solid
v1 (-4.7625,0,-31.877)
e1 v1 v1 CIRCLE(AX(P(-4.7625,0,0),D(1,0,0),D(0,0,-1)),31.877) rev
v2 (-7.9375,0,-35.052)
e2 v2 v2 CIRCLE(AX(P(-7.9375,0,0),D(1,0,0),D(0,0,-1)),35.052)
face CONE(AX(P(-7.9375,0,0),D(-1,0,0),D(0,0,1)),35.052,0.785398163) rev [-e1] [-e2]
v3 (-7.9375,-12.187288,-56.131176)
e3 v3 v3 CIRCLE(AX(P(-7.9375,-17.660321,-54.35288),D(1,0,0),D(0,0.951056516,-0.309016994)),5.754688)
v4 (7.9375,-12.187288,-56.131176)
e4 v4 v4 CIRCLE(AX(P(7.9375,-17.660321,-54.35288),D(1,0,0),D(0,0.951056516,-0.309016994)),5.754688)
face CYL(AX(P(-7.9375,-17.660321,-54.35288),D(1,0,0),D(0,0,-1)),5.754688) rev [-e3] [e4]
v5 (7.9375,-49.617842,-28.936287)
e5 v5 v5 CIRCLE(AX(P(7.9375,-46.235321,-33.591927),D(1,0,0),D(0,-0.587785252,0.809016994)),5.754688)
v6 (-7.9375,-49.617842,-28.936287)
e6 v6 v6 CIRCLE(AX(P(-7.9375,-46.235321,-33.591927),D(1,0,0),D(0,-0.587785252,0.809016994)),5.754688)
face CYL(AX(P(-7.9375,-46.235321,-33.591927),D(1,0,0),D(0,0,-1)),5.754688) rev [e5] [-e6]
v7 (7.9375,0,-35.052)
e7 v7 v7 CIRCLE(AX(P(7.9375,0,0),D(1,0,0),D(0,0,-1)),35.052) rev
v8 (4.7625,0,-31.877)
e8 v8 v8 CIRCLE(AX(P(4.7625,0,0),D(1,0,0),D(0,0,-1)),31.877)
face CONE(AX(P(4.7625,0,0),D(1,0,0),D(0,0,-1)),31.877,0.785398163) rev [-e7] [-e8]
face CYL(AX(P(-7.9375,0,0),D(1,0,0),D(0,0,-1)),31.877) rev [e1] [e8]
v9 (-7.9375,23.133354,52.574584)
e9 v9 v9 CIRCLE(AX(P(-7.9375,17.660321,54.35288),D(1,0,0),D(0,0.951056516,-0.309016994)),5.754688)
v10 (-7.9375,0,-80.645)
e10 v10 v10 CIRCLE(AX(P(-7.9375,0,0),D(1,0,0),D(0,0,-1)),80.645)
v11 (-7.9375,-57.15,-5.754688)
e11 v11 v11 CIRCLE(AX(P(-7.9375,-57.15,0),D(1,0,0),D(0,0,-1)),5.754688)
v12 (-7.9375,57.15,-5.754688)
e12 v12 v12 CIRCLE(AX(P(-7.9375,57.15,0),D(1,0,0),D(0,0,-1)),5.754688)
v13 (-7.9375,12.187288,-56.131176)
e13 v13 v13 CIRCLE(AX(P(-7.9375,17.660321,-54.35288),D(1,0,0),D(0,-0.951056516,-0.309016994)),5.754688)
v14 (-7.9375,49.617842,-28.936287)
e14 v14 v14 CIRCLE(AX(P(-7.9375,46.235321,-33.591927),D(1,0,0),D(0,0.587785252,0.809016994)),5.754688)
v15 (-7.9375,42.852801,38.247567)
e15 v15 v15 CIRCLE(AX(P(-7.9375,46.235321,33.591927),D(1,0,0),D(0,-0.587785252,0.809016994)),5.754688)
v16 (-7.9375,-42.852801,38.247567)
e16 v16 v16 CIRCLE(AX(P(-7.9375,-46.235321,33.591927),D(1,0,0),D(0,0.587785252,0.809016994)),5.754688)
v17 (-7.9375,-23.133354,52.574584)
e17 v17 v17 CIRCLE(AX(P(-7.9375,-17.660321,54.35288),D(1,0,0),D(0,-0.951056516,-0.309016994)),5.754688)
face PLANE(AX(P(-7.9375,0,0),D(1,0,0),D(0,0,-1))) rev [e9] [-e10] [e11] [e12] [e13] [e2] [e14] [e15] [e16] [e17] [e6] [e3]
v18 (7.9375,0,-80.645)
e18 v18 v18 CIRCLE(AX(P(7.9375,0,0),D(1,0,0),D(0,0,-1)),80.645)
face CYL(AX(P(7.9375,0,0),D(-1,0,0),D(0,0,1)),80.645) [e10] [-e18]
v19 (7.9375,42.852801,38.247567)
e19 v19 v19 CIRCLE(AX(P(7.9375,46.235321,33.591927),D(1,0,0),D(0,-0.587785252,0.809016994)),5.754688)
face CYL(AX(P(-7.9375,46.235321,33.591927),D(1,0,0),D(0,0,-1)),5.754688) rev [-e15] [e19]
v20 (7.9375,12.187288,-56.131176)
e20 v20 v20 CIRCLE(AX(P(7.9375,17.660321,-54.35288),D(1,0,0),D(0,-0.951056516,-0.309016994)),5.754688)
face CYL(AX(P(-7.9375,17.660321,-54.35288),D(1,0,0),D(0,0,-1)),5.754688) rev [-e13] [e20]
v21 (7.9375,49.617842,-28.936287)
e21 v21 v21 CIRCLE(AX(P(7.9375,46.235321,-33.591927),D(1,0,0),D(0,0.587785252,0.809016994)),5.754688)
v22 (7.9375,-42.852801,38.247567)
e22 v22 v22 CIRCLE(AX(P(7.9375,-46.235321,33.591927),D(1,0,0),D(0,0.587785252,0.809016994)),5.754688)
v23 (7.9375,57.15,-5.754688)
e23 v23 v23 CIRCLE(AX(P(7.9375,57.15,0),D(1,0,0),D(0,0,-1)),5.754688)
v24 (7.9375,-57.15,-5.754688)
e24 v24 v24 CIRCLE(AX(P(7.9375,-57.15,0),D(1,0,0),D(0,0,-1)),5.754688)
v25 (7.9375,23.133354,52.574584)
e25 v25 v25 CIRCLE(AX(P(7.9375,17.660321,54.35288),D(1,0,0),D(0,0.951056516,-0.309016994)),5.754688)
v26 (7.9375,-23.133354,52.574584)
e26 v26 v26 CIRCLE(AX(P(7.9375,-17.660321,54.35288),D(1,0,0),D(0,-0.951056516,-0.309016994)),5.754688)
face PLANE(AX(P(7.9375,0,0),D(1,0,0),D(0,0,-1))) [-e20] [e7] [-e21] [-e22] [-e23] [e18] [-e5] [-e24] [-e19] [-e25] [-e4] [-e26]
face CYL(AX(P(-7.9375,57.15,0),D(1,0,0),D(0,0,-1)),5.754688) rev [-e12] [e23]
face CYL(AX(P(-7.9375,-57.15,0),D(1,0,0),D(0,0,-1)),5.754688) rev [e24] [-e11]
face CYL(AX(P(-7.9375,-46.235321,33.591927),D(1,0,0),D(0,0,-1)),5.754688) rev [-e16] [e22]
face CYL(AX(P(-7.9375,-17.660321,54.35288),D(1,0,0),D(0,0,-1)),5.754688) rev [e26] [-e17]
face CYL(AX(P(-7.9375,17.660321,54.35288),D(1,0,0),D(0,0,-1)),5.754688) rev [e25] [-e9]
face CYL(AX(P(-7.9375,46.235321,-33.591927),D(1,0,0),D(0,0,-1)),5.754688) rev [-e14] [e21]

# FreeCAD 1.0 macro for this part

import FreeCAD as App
import Part
import Sketcher
from FreeCAD import Vector
Q = App.Units.Quantity


def edges_at(feature, points):
    """Names of the edges that pass closest to the given points."""
    edges = feature.Shape.Edges
    near = lambda p: min(range(len(edges)), key=lambda i: edges[i].distToShape(Part.Vertex(*p))[0])
    return sorted({f"Edge{near(p) + 1}" for p in points})

doc = App.newDocument("Part")
body = doc.addObject("PartDesign::Body", "Body")

# Sketch on YZ plane
sketch1 = body.newObject("Sketcher::SketchObject", "Sketch")
sketch1.AttachmentSupport = (doc.getObject("YZ_Plane"), [""])
sketch1.MapMode = "FlatFace"
sketch1.addGeometry(Part.Circle(Vector(0, 0, 0), Vector(0, 0, 1), 81), False)
sketch1.addConstraint(Sketcher.Constraint("Coincident", 0, 3, -1, 1))
sketch1.addConstraint(Sketcher.Constraint("Diameter", 0, Q("6.35 in")))
pad1 = body.newObject("PartDesign::Pad", "Pad")
pad1.Profile = sketch1
pad1.Length = Q("0.625 in")
pad1.Midplane = True

# Sketch on YZ plane
sketch2 = body.newObject("Sketcher::SketchObject", "Sketch001")
sketch2.AttachmentSupport = (doc.getObject("YZ_Plane"), [""])
sketch2.MapMode = "FlatFace"
sketch2.AttachmentOffset = App.Placement(Vector(0, 0, 0.3125 * 25.4), App.Rotation())
sketch2.addGeometry(Part.Circle(Vector(0, 0, 0), Vector(0, 0, 1), 32), False)
sketch2.addConstraint(Sketcher.Constraint("Coincident", 0, 3, -1, 1))
sketch2.addConstraint(Sketcher.Constraint("Diameter", 0, Q("2.51 in")))
pocket1 = body.newObject("PartDesign::Pocket", "Pocket")
pocket1.Profile = sketch2
pocket1.Type = "ThroughAll"
doc.recompute()

chamfer = body.newObject("PartDesign::Chamfer", "Chamfer")
chamfer.Base = (pocket1, edges_at(pocket1, [(-7.938, 0, 31.877), (7.938, 0, 31.877)]))
chamfer.Size = Q("0.125 in")

# Sketch on YZ plane
sketch3 = body.newObject("Sketcher::SketchObject", "Sketch002")
sketch3.AttachmentSupport = (doc.getObject("YZ_Plane"), [""])
sketch3.MapMode = "FlatFace"
sketch3.AttachmentOffset = App.Placement(Vector(0, 0, 0.3125 * 25.4), App.Rotation())
sketch3.addGeometry(Part.Circle(Vector(57, 0, 0), Vector(0, 0, 1), 6), False)
sketch3.addConstraint(Sketcher.Constraint("PointOnObject", 0, 3, -1))
sketch3.addConstraint(Sketcher.Constraint("Diameter", 0, Q("0.453125 in")))
sketch3.addConstraint(Sketcher.Constraint("DistanceX", -1, 1, 0, 3, Q("2.25 in")))
pocket2 = body.newObject("PartDesign::Pocket", "Pocket001")
pocket2.Profile = sketch3
pocket2.Type = "ThroughAll"
doc.recompute()

polarpattern = body.newObject("PartDesign::PolarPattern", "PolarPattern")
polarpattern.Originals = [pocket2]
polarpattern.Axis = (doc.getObject("X_Axis"), [""])
polarpattern.Angle = 360
polarpattern.Occurrences = 5
body.Tip = polarpattern

# Sketch on YZ plane
sketch4 = body.newObject("Sketcher::SketchObject", "Sketch003")
sketch4.AttachmentSupport = (doc.getObject("YZ_Plane"), [""])
sketch4.MapMode = "FlatFace"
sketch4.AttachmentOffset = App.Placement(Vector(0, 0, 0.3125 * 25.4), App.Rotation())
sketch4.addGeometry(Part.Circle(Vector(-57, 0, 0), Vector(0, 0, 1), 6), False)
sketch4.addConstraint(Sketcher.Constraint("PointOnObject", 0, 3, -1))
sketch4.addConstraint(Sketcher.Constraint("Diameter", 0, Q("0.453125 in")))
sketch4.addConstraint(Sketcher.Constraint("DistanceX", 0, 3, -1, 1, Q("2.25 in")))
pocket3 = body.newObject("PartDesign::Pocket", "Pocket002")
pocket3.Profile = sketch4
pocket3.Type = "ThroughAll"
doc.recompute()

polarpattern2 = body.newObject("PartDesign::PolarPattern", "PolarPattern001")
polarpattern2.Originals = [pocket3]
polarpattern2.Axis = (doc.getObject("X_Axis"), [""])
polarpattern2.Angle = 360
polarpattern2.Occurrences = 5
body.Tip = polarpattern2

doc.recompute()
